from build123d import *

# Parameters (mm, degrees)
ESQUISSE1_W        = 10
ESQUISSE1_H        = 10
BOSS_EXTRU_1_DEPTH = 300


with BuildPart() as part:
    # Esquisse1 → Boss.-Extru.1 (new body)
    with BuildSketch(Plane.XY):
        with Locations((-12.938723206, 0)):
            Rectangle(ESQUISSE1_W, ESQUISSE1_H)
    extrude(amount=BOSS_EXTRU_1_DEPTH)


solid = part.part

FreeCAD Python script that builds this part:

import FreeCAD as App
import Part
import Sketcher

doc = App.newDocument("Part")
body = doc.addObject("PartDesign::Body", "Body")

# Sketch on XY plane
sketch1 = body.newObject("Sketcher::SketchObject", "Sketch")
sketch1.AttachmentSupport = (doc.getObject("XY_Plane"), [""])
sketch1.MapMode = "FlatFace"
sketch1.addGeometry([
    Part.LineSegment(App.Vector(-17.938723, 5, 0), App.Vector(-17.938723, -5, 0)),
    Part.LineSegment(App.Vector(-17.938723, -5, 0), App.Vector(-7.938723, -5, 0)),
    Part.LineSegment(App.Vector(-7.938723, -5, 0), App.Vector(-7.938723, 5, 0)),
    Part.LineSegment(App.Vector(-7.938723, 5, 0), App.Vector(-17.938723, 5, 0)),
], False)
sketch1.addConstraint([
    Sketcher.Constraint("Coincident", 0, 2, 1, 1),
    Sketcher.Constraint("Coincident", 1, 2, 2, 1),
    Sketcher.Constraint("Coincident", 2, 2, 3, 1),
    Sketcher.Constraint("Coincident", 3, 2, 0, 1),
    Sketcher.Constraint("Vertical", 0),
    Sketcher.Constraint("Horizontal", 1),
    Sketcher.Constraint("Vertical", 2),
    Sketcher.Constraint("Horizontal", 3),
    Sketcher.Constraint("Equal", 3, 0),
    Sketcher.Constraint("DistanceX", 1, 1, 1, 2, 10.0),
    Sketcher.Constraint("DistanceY", 0, 2, -1, 1, 5.0),
    Sketcher.Constraint("DistanceX", 0, 2, -1, 1, 17.938723),
])
pad1 = body.newObject("PartDesign::Pad", "Pad")
pad1.Profile = sketch1
pad1.Length = 300

doc.recompute()
